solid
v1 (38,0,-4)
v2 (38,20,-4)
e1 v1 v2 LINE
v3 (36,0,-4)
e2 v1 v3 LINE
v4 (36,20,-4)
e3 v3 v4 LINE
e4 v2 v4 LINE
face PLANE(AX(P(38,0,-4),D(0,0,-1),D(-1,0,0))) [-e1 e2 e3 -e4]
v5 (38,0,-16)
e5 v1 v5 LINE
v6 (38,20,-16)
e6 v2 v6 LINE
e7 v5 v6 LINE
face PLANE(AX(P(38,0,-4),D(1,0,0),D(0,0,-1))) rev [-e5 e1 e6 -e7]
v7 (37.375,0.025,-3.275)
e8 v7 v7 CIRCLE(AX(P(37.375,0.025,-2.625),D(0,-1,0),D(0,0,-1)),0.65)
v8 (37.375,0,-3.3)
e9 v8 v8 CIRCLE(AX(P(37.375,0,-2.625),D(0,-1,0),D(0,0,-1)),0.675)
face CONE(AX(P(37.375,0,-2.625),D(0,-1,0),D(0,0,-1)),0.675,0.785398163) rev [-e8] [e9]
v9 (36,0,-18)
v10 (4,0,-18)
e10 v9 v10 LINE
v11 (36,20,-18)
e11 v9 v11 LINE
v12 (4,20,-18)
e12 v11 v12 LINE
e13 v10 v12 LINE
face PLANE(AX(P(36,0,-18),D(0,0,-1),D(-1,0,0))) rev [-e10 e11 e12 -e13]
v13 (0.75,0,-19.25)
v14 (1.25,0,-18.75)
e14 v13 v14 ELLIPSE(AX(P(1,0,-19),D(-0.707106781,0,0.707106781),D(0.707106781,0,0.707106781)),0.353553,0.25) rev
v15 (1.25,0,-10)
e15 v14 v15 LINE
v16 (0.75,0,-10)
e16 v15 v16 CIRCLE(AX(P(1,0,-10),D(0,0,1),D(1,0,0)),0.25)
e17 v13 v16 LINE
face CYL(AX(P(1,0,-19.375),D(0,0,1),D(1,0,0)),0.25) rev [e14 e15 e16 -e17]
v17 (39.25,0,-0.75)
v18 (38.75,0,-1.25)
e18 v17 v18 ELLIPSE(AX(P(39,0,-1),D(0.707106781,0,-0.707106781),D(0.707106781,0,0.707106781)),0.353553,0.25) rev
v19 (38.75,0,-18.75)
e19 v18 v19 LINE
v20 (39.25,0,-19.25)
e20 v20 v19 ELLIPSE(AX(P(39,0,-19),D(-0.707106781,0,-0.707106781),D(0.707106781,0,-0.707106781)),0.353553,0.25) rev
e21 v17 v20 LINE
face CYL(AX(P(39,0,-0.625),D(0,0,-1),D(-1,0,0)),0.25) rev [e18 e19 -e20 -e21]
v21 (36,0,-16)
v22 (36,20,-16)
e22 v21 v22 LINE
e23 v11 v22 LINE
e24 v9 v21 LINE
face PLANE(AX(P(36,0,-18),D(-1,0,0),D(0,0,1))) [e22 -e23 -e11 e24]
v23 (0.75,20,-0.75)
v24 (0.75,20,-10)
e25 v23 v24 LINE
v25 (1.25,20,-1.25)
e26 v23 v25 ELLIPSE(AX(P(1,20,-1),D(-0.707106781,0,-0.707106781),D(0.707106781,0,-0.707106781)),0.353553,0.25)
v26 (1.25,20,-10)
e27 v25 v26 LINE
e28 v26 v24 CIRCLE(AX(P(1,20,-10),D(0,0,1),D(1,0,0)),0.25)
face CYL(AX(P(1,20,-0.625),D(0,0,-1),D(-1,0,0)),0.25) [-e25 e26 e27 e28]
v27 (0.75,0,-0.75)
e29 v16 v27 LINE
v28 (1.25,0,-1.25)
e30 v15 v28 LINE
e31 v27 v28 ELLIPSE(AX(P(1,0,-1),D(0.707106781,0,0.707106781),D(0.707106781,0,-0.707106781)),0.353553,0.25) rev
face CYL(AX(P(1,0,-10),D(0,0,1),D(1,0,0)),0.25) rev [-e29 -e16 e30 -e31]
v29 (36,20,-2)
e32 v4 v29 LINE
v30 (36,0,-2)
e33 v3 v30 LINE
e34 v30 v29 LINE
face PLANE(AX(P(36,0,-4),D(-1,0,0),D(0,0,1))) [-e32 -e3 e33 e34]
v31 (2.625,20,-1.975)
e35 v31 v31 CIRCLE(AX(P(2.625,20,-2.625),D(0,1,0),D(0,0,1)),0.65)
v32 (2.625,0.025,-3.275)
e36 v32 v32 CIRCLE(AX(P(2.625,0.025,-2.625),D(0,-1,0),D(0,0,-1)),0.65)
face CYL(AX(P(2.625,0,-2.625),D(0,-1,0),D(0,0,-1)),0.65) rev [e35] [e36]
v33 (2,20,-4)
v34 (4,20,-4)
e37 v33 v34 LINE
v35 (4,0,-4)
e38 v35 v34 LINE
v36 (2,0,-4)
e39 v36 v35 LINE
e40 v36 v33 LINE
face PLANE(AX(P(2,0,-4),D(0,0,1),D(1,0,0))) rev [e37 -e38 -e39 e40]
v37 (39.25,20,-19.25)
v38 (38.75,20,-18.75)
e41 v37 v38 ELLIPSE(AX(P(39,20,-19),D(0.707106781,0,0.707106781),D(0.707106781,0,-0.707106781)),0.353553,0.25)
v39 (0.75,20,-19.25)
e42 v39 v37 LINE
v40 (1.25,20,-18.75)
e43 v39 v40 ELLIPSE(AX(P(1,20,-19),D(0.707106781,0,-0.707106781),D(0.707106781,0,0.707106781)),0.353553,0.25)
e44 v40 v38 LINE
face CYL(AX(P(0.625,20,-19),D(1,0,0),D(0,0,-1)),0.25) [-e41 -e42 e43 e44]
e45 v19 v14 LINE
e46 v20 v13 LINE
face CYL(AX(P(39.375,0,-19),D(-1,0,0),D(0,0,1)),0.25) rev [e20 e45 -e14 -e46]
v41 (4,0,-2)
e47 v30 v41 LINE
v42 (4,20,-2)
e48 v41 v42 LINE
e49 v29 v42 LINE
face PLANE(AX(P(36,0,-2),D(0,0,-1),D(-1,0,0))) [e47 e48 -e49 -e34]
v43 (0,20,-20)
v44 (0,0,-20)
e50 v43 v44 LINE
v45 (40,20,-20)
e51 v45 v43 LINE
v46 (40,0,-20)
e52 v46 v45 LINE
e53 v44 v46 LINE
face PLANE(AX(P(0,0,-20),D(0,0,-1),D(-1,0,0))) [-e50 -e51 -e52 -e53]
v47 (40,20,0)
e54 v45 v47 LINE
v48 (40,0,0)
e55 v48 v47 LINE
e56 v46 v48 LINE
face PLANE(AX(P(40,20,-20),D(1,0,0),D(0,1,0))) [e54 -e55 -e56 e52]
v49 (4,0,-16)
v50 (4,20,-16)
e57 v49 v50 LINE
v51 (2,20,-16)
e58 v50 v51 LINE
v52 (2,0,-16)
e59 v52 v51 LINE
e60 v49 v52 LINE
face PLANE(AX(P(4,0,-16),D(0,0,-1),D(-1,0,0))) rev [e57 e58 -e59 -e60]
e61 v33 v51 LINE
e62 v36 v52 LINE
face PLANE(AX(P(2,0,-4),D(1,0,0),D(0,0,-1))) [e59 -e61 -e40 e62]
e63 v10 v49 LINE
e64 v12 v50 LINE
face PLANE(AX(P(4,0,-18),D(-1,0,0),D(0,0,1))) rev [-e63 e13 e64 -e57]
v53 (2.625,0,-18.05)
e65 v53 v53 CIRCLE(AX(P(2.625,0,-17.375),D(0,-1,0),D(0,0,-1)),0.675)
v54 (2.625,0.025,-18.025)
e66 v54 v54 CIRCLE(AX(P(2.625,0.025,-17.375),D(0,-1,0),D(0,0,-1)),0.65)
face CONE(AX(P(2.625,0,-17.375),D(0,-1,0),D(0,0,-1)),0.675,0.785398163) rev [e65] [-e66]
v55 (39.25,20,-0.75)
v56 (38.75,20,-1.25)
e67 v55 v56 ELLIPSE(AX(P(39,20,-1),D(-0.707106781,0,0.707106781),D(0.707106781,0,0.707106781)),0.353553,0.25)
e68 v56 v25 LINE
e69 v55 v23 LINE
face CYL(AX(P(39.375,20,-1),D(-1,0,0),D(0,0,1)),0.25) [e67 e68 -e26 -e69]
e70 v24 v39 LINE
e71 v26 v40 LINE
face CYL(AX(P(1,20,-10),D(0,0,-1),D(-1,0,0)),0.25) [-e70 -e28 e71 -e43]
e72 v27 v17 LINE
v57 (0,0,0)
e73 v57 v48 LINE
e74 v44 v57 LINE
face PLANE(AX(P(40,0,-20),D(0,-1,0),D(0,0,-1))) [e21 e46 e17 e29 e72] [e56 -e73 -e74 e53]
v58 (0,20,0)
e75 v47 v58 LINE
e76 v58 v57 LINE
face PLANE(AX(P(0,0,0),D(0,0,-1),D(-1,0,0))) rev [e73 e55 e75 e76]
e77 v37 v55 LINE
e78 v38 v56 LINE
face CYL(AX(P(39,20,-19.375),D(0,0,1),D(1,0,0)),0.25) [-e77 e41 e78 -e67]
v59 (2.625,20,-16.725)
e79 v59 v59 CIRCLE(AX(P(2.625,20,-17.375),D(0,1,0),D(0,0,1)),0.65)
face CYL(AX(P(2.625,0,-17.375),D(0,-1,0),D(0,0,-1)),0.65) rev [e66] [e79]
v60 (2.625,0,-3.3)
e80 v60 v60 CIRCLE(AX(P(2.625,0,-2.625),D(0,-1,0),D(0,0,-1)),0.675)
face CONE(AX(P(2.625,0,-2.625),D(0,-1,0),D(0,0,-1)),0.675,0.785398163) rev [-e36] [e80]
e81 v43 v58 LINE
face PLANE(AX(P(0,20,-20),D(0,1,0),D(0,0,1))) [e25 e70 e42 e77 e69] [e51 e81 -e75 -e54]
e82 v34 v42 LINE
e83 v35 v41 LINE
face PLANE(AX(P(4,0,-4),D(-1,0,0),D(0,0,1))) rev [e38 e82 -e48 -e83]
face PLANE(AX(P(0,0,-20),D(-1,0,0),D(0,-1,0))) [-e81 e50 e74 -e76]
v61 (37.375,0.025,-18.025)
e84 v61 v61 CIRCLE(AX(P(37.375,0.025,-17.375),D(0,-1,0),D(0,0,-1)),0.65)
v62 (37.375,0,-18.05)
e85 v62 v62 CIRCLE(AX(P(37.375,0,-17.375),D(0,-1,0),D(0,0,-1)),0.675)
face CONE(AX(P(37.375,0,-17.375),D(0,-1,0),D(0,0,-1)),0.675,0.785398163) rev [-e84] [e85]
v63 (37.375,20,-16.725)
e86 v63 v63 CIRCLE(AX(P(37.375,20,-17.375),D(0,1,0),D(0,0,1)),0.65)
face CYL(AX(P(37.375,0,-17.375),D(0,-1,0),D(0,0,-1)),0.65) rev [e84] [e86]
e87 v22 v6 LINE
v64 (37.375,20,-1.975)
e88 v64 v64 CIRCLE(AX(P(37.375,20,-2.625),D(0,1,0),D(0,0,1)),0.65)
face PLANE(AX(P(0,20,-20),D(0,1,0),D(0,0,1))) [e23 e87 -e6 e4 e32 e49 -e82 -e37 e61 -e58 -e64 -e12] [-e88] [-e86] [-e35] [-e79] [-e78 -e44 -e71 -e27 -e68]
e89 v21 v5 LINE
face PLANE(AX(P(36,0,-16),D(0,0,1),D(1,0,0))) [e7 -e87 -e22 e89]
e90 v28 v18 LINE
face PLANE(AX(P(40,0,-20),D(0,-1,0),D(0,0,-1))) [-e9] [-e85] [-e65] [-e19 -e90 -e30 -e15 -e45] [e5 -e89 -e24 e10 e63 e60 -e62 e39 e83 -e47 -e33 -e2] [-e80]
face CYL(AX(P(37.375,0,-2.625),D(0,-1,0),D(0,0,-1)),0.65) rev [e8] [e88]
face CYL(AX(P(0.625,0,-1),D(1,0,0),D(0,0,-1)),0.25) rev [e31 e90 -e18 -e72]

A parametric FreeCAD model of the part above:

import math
import FreeCAD as App
import Part
import Sketcher
from FreeCAD import Vector
Q = App.Units.Quantity


def add_polygon(sketch, points):
    """Adds a closed chain of lines whose ends are joined by coincident constraints."""
    first, n = sketch.GeometryCount, len(points)
    for a, b in zip(points, points[1:] + points[:1]):
        sketch.addGeometry(Part.LineSegment(App.Vector(*a, 0), App.Vector(*b, 0)), False)
    for i in range(n):
        sketch.addConstraint(Sketcher.Constraint("Coincident", first + i, 2, first + (i + 1) % n, 1))

doc = App.newDocument("Part")
body = doc.addObject("PartDesign::Body", "Body")

# Sketch on XY plane
sketch1 = doc.addObject("Sketcher::SketchObject", "Sketch")
body.addObject(sketch1)
sketch1.AttachmentSupport = (doc.XY_Plane, [""])
sketch1.MapMode = "FlatFace"
add_polygon(sketch1, [(0, 20), (0, 0), (40, 0), (40, 20)])  # lines 0-3
sketch1.addConstraint(Sketcher.Constraint("Vertical", 0))
sketch1.addConstraint(Sketcher.Constraint("Horizontal", 1))
sketch1.addConstraint(Sketcher.Constraint("Vertical", 2))
sketch1.addConstraint(Sketcher.Constraint("Horizontal", 3))
sketch1.addConstraint(Sketcher.Constraint("Coincident", 0, 2, -1, 1))
sketch1.addConstraint(Sketcher.Constraint("DistanceX", 1, 1, 1, 2, Q("40 mm")))
sketch1.addConstraint(Sketcher.Constraint("DistanceY", 0, 2, 0, 1, Q("20 mm")))
pad1 = doc.addObject("PartDesign::Pad", "Pad")
body.addObject(pad1)
pad1.Profile = sketch1
pad1.Length = 20
pad1.Reversed = True

# Sketch on XZ plane
sketch2 = doc.addObject("Sketcher::SketchObject", "Sketch001")
body.addObject(sketch2)
sketch2.AttachmentSupport = (doc.XZ_Plane, [""])
sketch2.MapMode = "FlatFace"
sketch2.AttachmentOffset = App.Placement(Vector(0, 0, -20), App.Rotation())
add_polygon(sketch2, [(4, -18), (4, -16), (2, -16), (2, -4), (4, -4), (4, -2), (36, -2), (36, -4), (38, -4), (38, -16), (36, -16), (36, -18)])  # lines 0-11
sketch2.addConstraint(Sketcher.Constraint("Vertical", 0))
sketch2.addConstraint(Sketcher.Constraint("Horizontal", 1))
sketch2.addConstraint(Sketcher.Constraint("Vertical", 2))
sketch2.addConstraint(Sketcher.Constraint("Horizontal", 3))
sketch2.addConstraint(Sketcher.Constraint("Vertical", 4))
sketch2.addConstraint(Sketcher.Constraint("Horizontal", 5))
sketch2.addConstraint(Sketcher.Constraint("Vertical", 6))
sketch2.addConstraint(Sketcher.Constraint("Horizontal", 7))
sketch2.addConstraint(Sketcher.Constraint("Vertical", 8))
sketch2.addConstraint(Sketcher.Constraint("Horizontal", 9))
sketch2.addConstraint(Sketcher.Constraint("Vertical", 10))
sketch2.addConstraint(Sketcher.Constraint("Horizontal", 11))
sketch2.addConstraint(Sketcher.Constraint("Horizontal", 3, 2, 6, 2))
sketch2.addConstraint(Sketcher.Constraint("Horizontal", 1, 2, 8, 2))
sketch2.addConstraint(Sketcher.Constraint("Vertical", 0, 2, 3, 2))
sketch2.addConstraint(Sketcher.Constraint("Vertical", 6, 2, 9, 2))
sketch2.addConstraint(Sketcher.Constraint("Equal", 3, 7))
sketch2.addConstraint(Sketcher.Constraint("Equal", 9, 0))
sketch2.addConstraint(Sketcher.Constraint("Equal", 0, 4))
sketch2.addConstraint(Sketcher.Constraint("DistanceX", 1, 2, 1, 1, Q("2 mm")))
sketch2.addConstraint(Sketcher.Constraint("DistanceX", 5, 1, 5, 2, Q("32 mm")))
sketch2.addConstraint(Sketcher.Constraint("DistanceY", 2, 1, 2, 2, Q("12 mm")))
sketch2.addConstraint(Sketcher.Constraint("DistanceX", -1, 1, 0, 2, Q("4 mm")))
sketch2.addConstraint(Sketcher.Constraint("DistanceY", 0, 2, -1, 1, Q("16 mm")))
pocket1 = doc.addObject("PartDesign::Pocket", "Pocket")
body.addObject(pocket1)
pocket1.Profile = sketch2
pocket1.Length = 20
pocket1.Reversed = True

# Sketch on XY plane
sketch3 = doc.addObject("Sketcher::SketchObject", "Sketch002")
body.addObject(sketch3)
sketch3.AttachmentSupport = (doc.XY_Plane, [""])
sketch3.MapMode = "FlatFace"
sketch3.AttachmentOffset = App.Placement(Vector(0, 0, -10), App.Rotation())
sketch3.addGeometry(Part.LineSegment(Vector(0.75, 20, 0), Vector(1.25, 20, 0)), False)
sketch3.addGeometry(Part.ArcOfCircle(Part.Circle(Vector(1, 20, 0), Vector(0, 0, 1), 0.25), math.radians(0), math.radians(180)), False)
sketch3.addConstraint(Sketcher.Constraint("Coincident", 0, 1, 1, 2))
sketch3.addConstraint(Sketcher.Constraint("Coincident", 1, 1, 0, 2))
sketch3.addConstraint(Sketcher.Constraint("Horizontal", 0))
sketch3.addConstraint(Sketcher.Constraint("Horizontal", 1, 3, 0, 1))
sketch3.addConstraint(Sketcher.Constraint("Radius", 1, Q("0.25 mm")))
sketch3.addConstraint(Sketcher.Constraint("DistanceX", -1, 1, 1, 3, Q("1 mm")))
sketch3.addConstraint(Sketcher.Constraint("DistanceY", -1, 1, 1, 3, Q("20 mm")))

# Sketch on XZ plane
sketch4 = doc.addObject("Sketcher::SketchObject", "Sketch003")
body.addObject(sketch4)
sketch4.AttachmentSupport = (doc.XZ_Plane, [""])
sketch4.MapMode = "FlatFace"
sketch4.AttachmentOffset = App.Placement(Vector(0, 0, -20), App.Rotation())
add_polygon(sketch4, [(1, -19), (39, -19), (39, -1), (1, -1)])  # lines 0-3
sketch4.addConstraint(Sketcher.Constraint("Horizontal", 0))
sketch4.addConstraint(Sketcher.Constraint("Vertical", 1))
sketch4.addConstraint(Sketcher.Constraint("Horizontal", 2))
sketch4.addConstraint(Sketcher.Constraint("Vertical", 3))
sketch4.addConstraint(Sketcher.Constraint("DistanceX", 0, 1, 0, 2, Q("38 mm")))
sketch4.addConstraint(Sketcher.Constraint("DistanceY", 1, 1, 1, 2, Q("18 mm")))
sketch4.addConstraint(Sketcher.Constraint("DistanceX", -1, 1, 0, 2, Q("39 mm")))
sketch4.addConstraint(Sketcher.Constraint("DistanceY", 0, 2, -1, 1, Q("19 mm")))
doc.recompute()

additivepipe = doc.addObject("PartDesign::AdditivePipe", "AdditivePipe")
body.addObject(additivepipe)
additivepipe.Profile = sketch3
additivepipe.Spine = (sketch4, ["Edge1", "Edge2", "Edge3", "Edge4"])
additivepipe.Transition = "Right corner"

# Sketch on XY plane
sketch5 = doc.addObject("Sketcher::SketchObject", "Sketch004")
body.addObject(sketch5)
sketch5.AttachmentSupport = (doc.XY_Plane, [""])
sketch5.MapMode = "FlatFace"
sketch5.AttachmentOffset = App.Placement(Vector(0, 0, -10), App.Rotation())
sketch5.addGeometry(Part.LineSegment(Vector(0.75, 0, 0), Vector(1.25, 0, 0)), False)
sketch5.addGeometry(Part.ArcOfCircle(Part.Circle(Vector(1, 0, 0), Vector(0, 0, 1), 0.25), math.radians(0), math.radians(180)), False)
sketch5.addConstraint(Sketcher.Constraint("Coincident", 0, 1, 1, 2))
sketch5.addConstraint(Sketcher.Constraint("Coincident", 1, 1, 0, 2))
sketch5.addConstraint(Sketcher.Constraint("Horizontal", 0))
sketch5.addConstraint(Sketcher.Constraint("PointOnObject", 1, 3, -1))
sketch5.addConstraint(Sketcher.Constraint("PointOnObject", 0, 1, -1))
sketch5.addConstraint(Sketcher.Constraint("Radius", 1, Q("0.25 mm")))
sketch5.addConstraint(Sketcher.Constraint("DistanceX", -1, 1, 1, 3, Q("1 mm")))

# Sketch on XZ plane
sketch6 = doc.addObject("Sketcher::SketchObject", "Sketch005")
body.addObject(sketch6)
sketch6.AttachmentSupport = (doc.XZ_Plane, [""])
sketch6.MapMode = "FlatFace"
add_polygon(sketch6, [(1, -19), (39, -19), (39, -1), (1, -1)])  # lines 0-3
sketch6.addConstraint(Sketcher.Constraint("Horizontal", 0))
sketch6.addConstraint(Sketcher.Constraint("Vertical", 1))
sketch6.addConstraint(Sketcher.Constraint("Horizontal", 2))
sketch6.addConstraint(Sketcher.Constraint("Vertical", 3))
sketch6.addConstraint(Sketcher.Constraint("DistanceX", 0, 1, 0, 2, Q("38 mm")))
sketch6.addConstraint(Sketcher.Constraint("DistanceY", 1, 1, 1, 2, Q("18 mm")))
sketch6.addConstraint(Sketcher.Constraint("DistanceX", -1, 1, 0, 2, Q("39 mm")))
sketch6.addConstraint(Sketcher.Constraint("DistanceY", 0, 2, -1, 1, Q("19 mm")))
doc.recompute()

subtractivepipe = doc.addObject("PartDesign::SubtractivePipe", "SubtractivePipe")
body.addObject(subtractivepipe)
subtractivepipe.Profile = sketch5
subtractivepipe.Spine = (sketch6, ["Edge1", "Edge2", "Edge3", "Edge4"])
subtractivepipe.Transition = "Right corner"

# Sketch on XZ plane
sketch7 = doc.addObject("Sketcher::SketchObject", "Sketch006")
body.addObject(sketch7)
sketch7.AttachmentSupport = (doc.XZ_Plane, [""])
sketch7.MapMode = "FlatFace"
sketch7.addGeometry(Part.Circle(Vector(37.4, -17.4, 0), Vector(0, 0, 1), 0.7), False)
sketch7.addConstraint(Sketcher.Constraint("Diameter", 0, Q("1.3 mm")))
sketch7.addConstraint(Sketcher.Constraint("DistanceX", -1, 1, 0, 3, Q("37.375 mm")))
sketch7.addConstraint(Sketcher.Constraint("DistanceY", 0, 3, -1, 1, Q("17.375 mm")))
doc.recompute()
hole = doc.addObject("PartDesign::Hole", "Hole")
body.addObject(hole)
hole.Profile = sketch7
hole.ThreadType = "None"
hole.Diameter = 1.3
hole.DepthType = "ThroughAll"
hole.HoleCutType = "Countersink"
hole.HoleCutDiameter = 1.35
hole.HoleCutCountersinkAngle = 90
doc.recompute()

datumplane = doc.addObject("PartDesign::Plane", "DatumPlane")
body.addObject(datumplane)
datumplane.AttachmentSupport = (doc.XY_Plane, [""])
datumplane.MapMode = "FlatFace"
datumplane.AttachmentOffset = App.Placement(Vector(0, 0, -10), App.Rotation())
mirrored = doc.addObject("PartDesign::Mirrored", "Mirrored")
body.addObject(mirrored)
mirrored.Originals = [hole]
mirrored.MirrorPlane = (datumplane, [""])
body.Tip = mirrored
doc.recompute()

datumplane2 = doc.addObject("PartDesign::Plane", "DatumPlane001")
body.addObject(datumplane2)
datumplane2.AttachmentSupport = (doc.YZ_Plane, [""])
datumplane2.MapMode = "FlatFace"
datumplane2.AttachmentOffset = App.Placement(Vector(0, 0, 20), App.Rotation())
mirrored2 = doc.addObject("PartDesign::Mirrored", "Mirrored001")
body.addObject(mirrored2)
mirrored2.Originals = [hole]
mirrored2.MirrorPlane = (datumplane2, [""])
body.Tip = mirrored2

# Sketch on XZ plane
sketch8 = doc.addObject("Sketcher::SketchObject", "Sketch007")
body.addObject(sketch8)
sketch8.AttachmentSupport = (doc.XZ_Plane, [""])
sketch8.MapMode = "FlatFace"
sketch8.addGeometry(Part.Circle(Vector(2.6, -2.6, 0), Vector(0, 0, 1), 0.7), False)
sketch8.addConstraint(Sketcher.Constraint("Diameter", 0, Q("1.3 mm")))
sketch8.addConstraint(Sketcher.Constraint("DistanceX", -1, 1, 0, 3, Q("2.625 mm")))
sketch8.addConstraint(Sketcher.Constraint("DistanceY", 0, 3, -1, 1, Q("2.625 mm")))
doc.recompute()
hole2 = doc.addObject("PartDesign::Hole", "Hole001")
body.addObject(hole2)
hole2.Profile = sketch8
hole2.ThreadType = "None"
hole2.Diameter = 1.3
hole2.DepthType = "ThroughAll"
hole2.HoleCutType = "Countersink"
hole2.HoleCutDiameter = 1.35
hole2.HoleCutCountersinkAngle = 90

doc.recompute()
